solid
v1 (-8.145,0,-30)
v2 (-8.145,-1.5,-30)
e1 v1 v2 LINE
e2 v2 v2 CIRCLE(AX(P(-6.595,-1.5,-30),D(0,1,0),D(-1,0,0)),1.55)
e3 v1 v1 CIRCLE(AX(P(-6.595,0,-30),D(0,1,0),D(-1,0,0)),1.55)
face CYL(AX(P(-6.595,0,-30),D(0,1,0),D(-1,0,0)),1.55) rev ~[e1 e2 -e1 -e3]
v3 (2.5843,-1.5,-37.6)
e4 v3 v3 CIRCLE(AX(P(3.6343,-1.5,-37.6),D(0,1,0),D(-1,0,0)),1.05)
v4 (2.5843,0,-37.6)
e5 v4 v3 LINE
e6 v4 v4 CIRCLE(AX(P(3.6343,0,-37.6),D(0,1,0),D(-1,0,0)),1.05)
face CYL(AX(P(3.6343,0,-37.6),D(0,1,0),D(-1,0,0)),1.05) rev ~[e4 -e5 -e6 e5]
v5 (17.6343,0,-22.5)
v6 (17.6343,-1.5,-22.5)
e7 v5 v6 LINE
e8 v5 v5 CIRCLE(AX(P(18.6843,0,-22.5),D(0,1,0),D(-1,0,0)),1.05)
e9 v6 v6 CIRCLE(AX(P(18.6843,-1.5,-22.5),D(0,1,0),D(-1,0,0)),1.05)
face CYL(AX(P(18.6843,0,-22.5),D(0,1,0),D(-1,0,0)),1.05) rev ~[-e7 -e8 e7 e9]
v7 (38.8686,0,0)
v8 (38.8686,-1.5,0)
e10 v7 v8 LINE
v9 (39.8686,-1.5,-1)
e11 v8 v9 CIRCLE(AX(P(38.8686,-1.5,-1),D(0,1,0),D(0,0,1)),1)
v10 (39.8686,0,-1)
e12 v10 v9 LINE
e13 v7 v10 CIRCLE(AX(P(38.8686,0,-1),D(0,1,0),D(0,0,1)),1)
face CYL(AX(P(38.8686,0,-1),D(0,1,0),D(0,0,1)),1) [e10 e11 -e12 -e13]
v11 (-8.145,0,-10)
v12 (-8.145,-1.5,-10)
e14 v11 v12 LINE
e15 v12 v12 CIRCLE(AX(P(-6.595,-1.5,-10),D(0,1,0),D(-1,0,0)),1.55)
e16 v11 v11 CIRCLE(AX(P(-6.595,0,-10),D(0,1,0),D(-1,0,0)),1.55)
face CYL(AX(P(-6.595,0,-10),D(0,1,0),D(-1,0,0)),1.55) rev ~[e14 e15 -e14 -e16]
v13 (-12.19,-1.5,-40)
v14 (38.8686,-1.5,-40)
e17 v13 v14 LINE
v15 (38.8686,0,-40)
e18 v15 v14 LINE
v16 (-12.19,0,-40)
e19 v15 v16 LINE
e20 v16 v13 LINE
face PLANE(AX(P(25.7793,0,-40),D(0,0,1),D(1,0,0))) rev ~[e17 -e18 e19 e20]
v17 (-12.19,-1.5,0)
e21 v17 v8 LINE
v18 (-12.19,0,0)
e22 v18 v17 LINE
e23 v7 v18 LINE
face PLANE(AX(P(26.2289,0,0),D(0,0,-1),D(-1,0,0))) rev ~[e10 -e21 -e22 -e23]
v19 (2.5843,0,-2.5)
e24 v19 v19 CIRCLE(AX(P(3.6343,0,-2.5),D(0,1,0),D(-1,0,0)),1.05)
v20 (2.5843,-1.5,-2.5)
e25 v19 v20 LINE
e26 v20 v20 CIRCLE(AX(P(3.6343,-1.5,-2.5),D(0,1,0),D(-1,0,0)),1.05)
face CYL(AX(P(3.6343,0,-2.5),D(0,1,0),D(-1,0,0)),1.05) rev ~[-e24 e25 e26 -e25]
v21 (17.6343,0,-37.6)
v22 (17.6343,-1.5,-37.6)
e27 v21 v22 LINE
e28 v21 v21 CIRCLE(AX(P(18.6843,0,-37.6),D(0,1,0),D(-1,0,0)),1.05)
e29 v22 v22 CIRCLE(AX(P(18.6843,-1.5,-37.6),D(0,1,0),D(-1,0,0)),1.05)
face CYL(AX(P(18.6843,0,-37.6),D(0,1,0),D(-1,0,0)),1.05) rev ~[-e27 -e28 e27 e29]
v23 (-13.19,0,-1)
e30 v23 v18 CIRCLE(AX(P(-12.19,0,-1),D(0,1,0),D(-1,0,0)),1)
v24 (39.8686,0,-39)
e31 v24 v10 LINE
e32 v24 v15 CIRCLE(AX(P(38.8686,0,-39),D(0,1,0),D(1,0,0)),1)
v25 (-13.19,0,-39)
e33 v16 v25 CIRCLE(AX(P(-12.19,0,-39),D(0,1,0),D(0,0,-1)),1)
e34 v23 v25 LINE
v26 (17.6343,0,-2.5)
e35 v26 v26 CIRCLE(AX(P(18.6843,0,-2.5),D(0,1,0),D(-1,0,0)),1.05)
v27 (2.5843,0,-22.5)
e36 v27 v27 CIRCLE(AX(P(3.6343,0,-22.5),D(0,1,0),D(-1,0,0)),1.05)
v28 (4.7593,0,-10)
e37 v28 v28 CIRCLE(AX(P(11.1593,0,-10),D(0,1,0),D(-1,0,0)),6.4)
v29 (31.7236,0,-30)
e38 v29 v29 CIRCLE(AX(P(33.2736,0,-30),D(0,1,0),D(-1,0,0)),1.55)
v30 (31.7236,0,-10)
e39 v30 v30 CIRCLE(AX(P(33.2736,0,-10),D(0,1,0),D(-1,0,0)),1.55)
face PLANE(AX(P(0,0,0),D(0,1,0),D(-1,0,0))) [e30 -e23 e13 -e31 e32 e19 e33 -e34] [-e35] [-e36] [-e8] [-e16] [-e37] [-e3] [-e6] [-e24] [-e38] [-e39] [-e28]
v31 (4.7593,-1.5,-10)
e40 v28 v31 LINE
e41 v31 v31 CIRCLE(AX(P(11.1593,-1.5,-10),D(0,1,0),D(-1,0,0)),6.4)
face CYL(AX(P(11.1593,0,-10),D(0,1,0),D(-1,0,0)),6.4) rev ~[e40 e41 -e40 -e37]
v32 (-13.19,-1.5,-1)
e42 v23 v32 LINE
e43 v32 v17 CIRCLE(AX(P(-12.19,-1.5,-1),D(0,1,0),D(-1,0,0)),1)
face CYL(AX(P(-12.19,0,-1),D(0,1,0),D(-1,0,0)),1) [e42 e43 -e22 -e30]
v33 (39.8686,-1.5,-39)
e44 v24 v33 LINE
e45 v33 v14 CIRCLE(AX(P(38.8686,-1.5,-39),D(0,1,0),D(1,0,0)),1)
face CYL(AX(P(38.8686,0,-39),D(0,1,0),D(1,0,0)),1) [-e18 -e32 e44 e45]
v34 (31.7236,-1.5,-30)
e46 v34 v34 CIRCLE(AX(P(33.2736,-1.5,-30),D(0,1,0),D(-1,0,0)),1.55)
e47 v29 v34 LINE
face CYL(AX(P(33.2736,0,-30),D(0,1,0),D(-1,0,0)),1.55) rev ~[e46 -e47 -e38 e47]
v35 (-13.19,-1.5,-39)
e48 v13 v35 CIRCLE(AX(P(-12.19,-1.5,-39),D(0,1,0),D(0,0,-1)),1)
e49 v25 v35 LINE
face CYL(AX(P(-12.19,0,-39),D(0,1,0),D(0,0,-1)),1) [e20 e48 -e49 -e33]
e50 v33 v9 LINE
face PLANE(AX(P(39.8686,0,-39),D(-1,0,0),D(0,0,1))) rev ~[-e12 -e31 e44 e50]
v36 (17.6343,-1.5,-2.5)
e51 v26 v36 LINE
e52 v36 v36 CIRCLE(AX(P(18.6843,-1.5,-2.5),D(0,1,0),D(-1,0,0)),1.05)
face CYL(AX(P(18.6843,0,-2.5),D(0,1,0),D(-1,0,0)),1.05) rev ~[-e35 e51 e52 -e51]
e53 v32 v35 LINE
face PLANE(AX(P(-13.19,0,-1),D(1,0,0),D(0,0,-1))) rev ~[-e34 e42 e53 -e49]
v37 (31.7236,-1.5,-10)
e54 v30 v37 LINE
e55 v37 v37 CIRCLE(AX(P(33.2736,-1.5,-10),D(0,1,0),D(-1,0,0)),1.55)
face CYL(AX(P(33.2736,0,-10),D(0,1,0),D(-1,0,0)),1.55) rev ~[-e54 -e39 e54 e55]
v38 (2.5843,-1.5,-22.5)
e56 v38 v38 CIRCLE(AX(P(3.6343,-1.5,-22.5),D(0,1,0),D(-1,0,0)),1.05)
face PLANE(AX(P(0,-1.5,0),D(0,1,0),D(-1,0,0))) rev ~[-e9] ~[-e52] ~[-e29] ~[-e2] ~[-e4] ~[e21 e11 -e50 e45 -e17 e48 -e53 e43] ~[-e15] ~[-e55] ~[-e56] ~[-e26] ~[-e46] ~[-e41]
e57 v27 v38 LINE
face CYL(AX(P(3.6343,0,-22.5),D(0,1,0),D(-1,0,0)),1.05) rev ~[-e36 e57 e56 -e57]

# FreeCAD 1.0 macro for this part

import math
import FreeCAD as App
import Part
import Sketcher
from FreeCAD import Vector
Q = App.Units.Quantity

doc = App.newDocument("Part")
params = doc.addObject("Spreadsheet::Sheet", "Params")
for row, (alias, value) in enumerate([
    ("sketch1_radius", "1 mm"),
    ("sketch1_diameter", "2.1 mm"),
    ("sketch1_diameter2", "12.8 mm"),
    ("sketch1_diameter3", "3.1 mm"),
    ("sketch1_height", "38 mm"),
    ("pad1_length", "1.5 mm"),
], start=1):
    params.set(f"A{row}", alias)
    params.set(f"B{row}", "=" + value)
    params.setAlias(f"B{row}", alias)

body = doc.addObject("PartDesign::Body", "Body")

sketch1 = body.newObject("Sketcher::SketchObject", "Sketch")
sketch1.AttachmentSupport = (doc.getObject("XZ_Plane"), [""])
sketch1.MapMode = "FlatFace"
sketch1.addGeometry(Part.ArcOfCircle(Part.Circle(Vector(38.9, -1, 0), Vector(0, 0, 1), 1), math.radians(0), math.radians(90)), False)
sketch1.addGeometry(Part.LineSegment(Vector(39.9, -1, 0), Vector(39.9, -39, 0)), False)
sketch1.addGeometry(Part.ArcOfCircle(Part.Circle(Vector(38.9, -39, 0), Vector(0, 0, 1), 1), math.radians(-90), math.radians(0)), False)
sketch1.addGeometry(Part.LineSegment(Vector(38.9, -40, 0), Vector(-12.2, -40, 0)), False)
sketch1.addGeometry(Part.ArcOfCircle(Part.Circle(Vector(-12.2, -39, 0), Vector(0, 0, 1), 1), math.radians(180), math.radians(270)), False)
sketch1.addGeometry(Part.LineSegment(Vector(-13.2, -39, 0), Vector(-13.2, -1, 0)), False)
sketch1.addGeometry(Part.ArcOfCircle(Part.Circle(Vector(-12.2, -1, 0), Vector(0, 0, 1), 1), math.radians(90), math.radians(180)), False)
sketch1.addGeometry(Part.LineSegment(Vector(-12.2, 0, 0), Vector(38.9, 0, 0)), False)
sketch1.addGeometry(Part.Circle(Vector(3.6, -2.5, 0), Vector(0, 0, 1), 1.1), False)
sketch1.addGeometry(Part.Circle(Vector(18.7, -37.6, 0), Vector(0, 0, 1), 1.1), False)
sketch1.addGeometry(Part.Circle(Vector(18.7, -22.5, 0), Vector(0, 0, 1), 1.1), False)
sketch1.addGeometry(Part.Circle(Vector(3.6, -37.6, 0), Vector(0, 0, 1), 1.1), False)
sketch1.addGeometry(Part.Circle(Vector(3.6, -22.5, 0), Vector(0, 0, 1), 1.1), False)
sketch1.addGeometry(Part.Circle(Vector(18.7, -2.5, 0), Vector(0, 0, 1), 1.1), False)
sketch1.addGeometry(Part.Circle(Vector(11.2, -10, 0), Vector(0, 0, 1), 6.4), False)
sketch1.addGeometry(Part.Circle(Vector(33.3, -10, 0), Vector(0, 0, 1), 1.6), False)
sketch1.addGeometry(Part.Circle(Vector(33.3, -30, 0), Vector(0, 0, 1), 1.6), False)
sketch1.addGeometry(Part.Circle(Vector(-6.6, -10, 0), Vector(0, 0, 1), 1.6), False)
sketch1.addGeometry(Part.Circle(Vector(-6.6, -30, 0), Vector(0, 0, 1), 1.6), False)
sketch1.addConstraint(Sketcher.Constraint("Tangent", 0, 1, 1, 1))
sketch1.addConstraint(Sketcher.Constraint("Tangent", 1, 2, 2, 2))
sketch1.addConstraint(Sketcher.Constraint("Tangent", 2, 1, 3, 1))
sketch1.addConstraint(Sketcher.Constraint("Tangent", 3, 2, 4, 2))
sketch1.addConstraint(Sketcher.Constraint("Tangent", 4, 1, 5, 1))
sketch1.addConstraint(Sketcher.Constraint("Tangent", 5, 2, 6, 2))
sketch1.addConstraint(Sketcher.Constraint("Tangent", 6, 1, 7, 1))
sketch1.addConstraint(Sketcher.Constraint("Tangent", 7, 2, 0, 2))
sketch1.addConstraint(Sketcher.Constraint("Vertical", 1))
sketch1.addConstraint(Sketcher.Constraint("Horizontal", 3))
sketch1.addConstraint(Sketcher.Constraint("Vertical", 5))
sketch1.addConstraint(Sketcher.Constraint("Horizontal", 7))
sketch1.addConstraint(Sketcher.Constraint("Equal", 0, 2))
sketch1.addConstraint(Sketcher.Constraint("Equal", 2, 4))
sketch1.addConstraint(Sketcher.Constraint("Equal", 4, 6))
sketch1.addConstraint(Sketcher.Constraint("Equal", 8, 9))
sketch1.addConstraint(Sketcher.Constraint("Equal", 9, 10))
sketch1.addConstraint(Sketcher.Constraint("Equal", 10, 11))
sketch1.addConstraint(Sketcher.Constraint("Equal", 11, 12))
sketch1.addConstraint(Sketcher.Constraint("Equal", 12, 13))
sketch1.addConstraint(Sketcher.Constraint("Equal", 15, 16))
sketch1.addConstraint(Sketcher.Constraint("Equal", 16, 17))
sketch1.addConstraint(Sketcher.Constraint("Equal", 17, 18))
sketch1.addConstraint(Sketcher.Constraint("PointOnObject", 6, 1, -1))
sketch1.addConstraint(Sketcher.Constraint("Horizontal", 9, 3, 11, 3))
sketch1.addConstraint(Sketcher.Constraint("Horizontal", 10, 3, 12, 3))
sketch1.addConstraint(Sketcher.Constraint("Horizontal", 8, 3, 13, 3))
sketch1.addConstraint(Sketcher.Constraint("Horizontal", 14, 3, 15, 3))
sketch1.addConstraint(Sketcher.Constraint("Horizontal", 15, 3, 17, 3))
sketch1.addConstraint(Sketcher.Constraint("Horizontal", 16, 3, 18, 3))
sketch1.addConstraint(Sketcher.Constraint("Vertical", 9, 3, 10, 3))
sketch1.addConstraint(Sketcher.Constraint("Vertical", 8, 3, 11, 3))
sketch1.addConstraint(Sketcher.Constraint("Vertical", 11, 3, 12, 3))
sketch1.addConstraint(Sketcher.Constraint("Vertical", 10, 3, 13, 3))
sketch1.addConstraint(Sketcher.Constraint("Vertical", 15, 3, 16, 3))
sketch1.addConstraint(Sketcher.Constraint("Vertical", 17, 3, 18, 3))
sketch1.addConstraint(Sketcher.Constraint("Radius", 0, Q("1 mm")))
sketch1.addConstraint(Sketcher.Constraint("Diameter", 8, Q("2.1 mm")))
sketch1.addConstraint(Sketcher.Constraint("Diameter", 14, Q("12.8 mm")))
sketch1.addConstraint(Sketcher.Constraint("Diameter", 15, Q("3.1 mm")))
sketch1.addConstraint(Sketcher.Constraint("DistanceY", 1, 2, 1, 1, Q("38 mm")))
sketch1.addConstraint(Sketcher.Constraint("DistanceY", 14, 3, -1, 1, Q("10 mm")))
sketch1.addConstraint(Sketcher.Constraint("DistanceY", 16, 3, -1, 1, Q("30 mm")))
sketch1.addConstraint(Sketcher.Constraint("DistanceY", 10, 3, 8, 3, Q("20 mm")))
sketch1.addConstraint(Sketcher.Constraint("DistanceY", 8, 3, -1, 1, Q("2.5 mm")))
sketch1.addConstraint(Sketcher.Constraint("DistanceY", 9, 3, -1, 1, Q("37.6 mm")))
sketch1.addConstraint(Sketcher.Constraint("DistanceX", 4, 3, -1, 1, Q("12.19 mm")))
sketch1.addConstraint(Sketcher.Constraint("DistanceX", 8, 3, 9, 3, Q("15.05 mm")))
sketch1.addConstraint(Sketcher.Constraint("DistanceX", 3, 2, 3, 1, Q("51.0586 mm")))
sketch1.addConstraint(Sketcher.Constraint("DistanceX", 17, 3, -1, 1, Q("6.595 mm")))
sketch1.addConstraint(Sketcher.Constraint("DistanceX", 8, 3, 14, 3, Q("7.525 mm")))
sketch1.addConstraint(Sketcher.Constraint("DistanceX", 15, 3, 0, 3, Q("5.595 mm")))
sketch1.addConstraint(Sketcher.Constraint("DistanceX", -1, 1, 8, 3, Q("3.6343 mm")))
sketch1.setExpression("Constraints[36]", "Params.sketch1_radius")
sketch1.setExpression("Constraints[37]", "Params.sketch1_diameter")
sketch1.setExpression("Constraints[38]", "Params.sketch1_diameter2")
sketch1.setExpression("Constraints[39]", "Params.sketch1_diameter3")
sketch1.setExpression("Constraints[40]", "Params.sketch1_height")
pad1 = body.newObject("PartDesign::Pad", "Pad")
pad1.Profile = sketch1
pad1.setExpression("Length", "Params.pad1_length")

doc.recompute()
